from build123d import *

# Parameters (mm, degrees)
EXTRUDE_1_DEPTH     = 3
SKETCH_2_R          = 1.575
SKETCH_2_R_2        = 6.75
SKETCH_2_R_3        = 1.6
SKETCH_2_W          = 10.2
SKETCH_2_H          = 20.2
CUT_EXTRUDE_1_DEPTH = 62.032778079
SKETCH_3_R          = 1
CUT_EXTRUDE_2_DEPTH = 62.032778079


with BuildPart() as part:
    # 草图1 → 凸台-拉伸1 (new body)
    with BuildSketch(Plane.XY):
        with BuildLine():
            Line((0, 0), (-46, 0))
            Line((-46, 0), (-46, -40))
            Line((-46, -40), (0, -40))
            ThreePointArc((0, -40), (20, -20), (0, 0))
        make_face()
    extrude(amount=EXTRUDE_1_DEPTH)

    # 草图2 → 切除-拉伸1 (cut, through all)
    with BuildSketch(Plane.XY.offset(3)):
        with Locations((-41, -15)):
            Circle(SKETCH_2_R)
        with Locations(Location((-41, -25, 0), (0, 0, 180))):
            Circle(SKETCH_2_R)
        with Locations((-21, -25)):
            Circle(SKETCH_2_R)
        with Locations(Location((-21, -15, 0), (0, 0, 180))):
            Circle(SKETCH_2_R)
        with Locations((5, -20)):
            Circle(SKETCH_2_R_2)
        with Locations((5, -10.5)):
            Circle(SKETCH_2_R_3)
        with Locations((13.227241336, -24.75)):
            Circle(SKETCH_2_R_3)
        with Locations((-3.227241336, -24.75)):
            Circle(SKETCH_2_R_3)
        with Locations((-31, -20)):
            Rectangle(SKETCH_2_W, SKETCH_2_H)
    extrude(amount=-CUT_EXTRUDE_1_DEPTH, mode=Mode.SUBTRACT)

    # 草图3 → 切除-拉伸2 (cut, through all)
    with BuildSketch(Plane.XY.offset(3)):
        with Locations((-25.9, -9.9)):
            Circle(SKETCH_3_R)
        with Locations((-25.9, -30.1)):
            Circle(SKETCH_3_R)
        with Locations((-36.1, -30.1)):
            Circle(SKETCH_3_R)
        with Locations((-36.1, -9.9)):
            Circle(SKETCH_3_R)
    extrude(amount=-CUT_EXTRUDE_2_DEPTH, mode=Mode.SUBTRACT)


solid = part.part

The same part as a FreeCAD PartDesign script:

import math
import FreeCAD as App
import Part
import Sketcher

doc = App.newDocument("Part")
params = doc.addObject("Spreadsheet::Sheet", "Params")
for row, (alias, value) in enumerate([
    ("sketch1_radius", "20 mm"),
    ("sketch1_width", "46 mm"),
    ("pad1_length", "3 mm"),
    ("sketch2_diameter", "13.5 mm"),
    ("sketch2_diameter2", "3.2 mm"),
    ("sketch2_diameter3", "3.15 mm"),
    ("sketch2_width", "10.2 mm"),
    ("sketch2_height", "20.2 mm"),
    ("sketch3_diameter", "2 mm"),
], start=1):
    params.set(f"A{row}", alias)
    params.set(f"B{row}", "=" + value)
    params.setAlias(f"B{row}", alias)

body = doc.addObject("PartDesign::Body", "Body")

sketch1 = doc.addObject("Sketcher::SketchObject", "Sketch")
body.addObject(sketch1)
sketch1.AttachmentSupport = (doc.XY_Plane, [""])
sketch1.MapMode = "FlatFace"
sketch1.addGeometry([
    Part.LineSegment(App.Vector(0, 0, 0), App.Vector(-46, 0, 0)),
    Part.LineSegment(App.Vector(-46, 0, 0), App.Vector(-46, -40, 0)),
    Part.LineSegment(App.Vector(-46, -40, 0), App.Vector(0, -40, 0)),
    Part.ArcOfCircle(Part.Circle(App.Vector(0, -20, 0), App.Vector(0, 0, 1), 20), math.radians(-90), math.radians(90)),
], False)
sketch1.addConstraint([
    Sketcher.Constraint("Coincident", 0, 2, 1, 1),
    Sketcher.Constraint("Coincident", 1, 2, 2, 1),
    Sketcher.Constraint("Tangent", 2, 2, 3, 1),
    Sketcher.Constraint("Tangent", 3, 2, 0, 1),
    Sketcher.Constraint("Horizontal", 0),
    Sketcher.Constraint("Vertical", 1),
    Sketcher.Constraint("Horizontal", 2),
    Sketcher.Constraint("Coincident", 3, 2, -1, 1),
    Sketcher.Constraint("Radius", 3, 20.0),
    Sketcher.Constraint("DistanceX", 0, 2, 0, 1, 46.0),
])
sketch1.setExpression("Constraints[8]", "Params.sketch1_radius")
sketch1.setExpression("Constraints[9]", "Params.sketch1_width")
pad1 = doc.addObject("PartDesign::Pad", "Pad")
body.addObject(pad1)
pad1.Profile = sketch1
pad1.setExpression("Length", "Params.pad1_length")

sketch2 = doc.addObject("Sketcher::SketchObject", "Sketch001")
body.addObject(sketch2)
sketch2.AttachmentSupport = (doc.XY_Plane, [""])
sketch2.MapMode = "FlatFace"
sketch2.AttachmentOffset = App.Placement(App.Vector(0, 0, 3), App.Rotation())
sketch2.addGeometry([
    Part.Circle(App.Vector(-41, -15, 0), App.Vector(0, 0, 1), 1.575),
    Part.Circle(App.Vector(-41, -25, 0), App.Vector(0, 0, 1), 1.575),
    Part.Circle(App.Vector(-21, -25, 0), App.Vector(0, 0, 1), 1.575),
    Part.Circle(App.Vector(-21, -15, 0), App.Vector(0, 0, 1), 1.575),
    Part.Circle(App.Vector(5, -20, 0), App.Vector(0, 0, 1), 6.75),
    Part.Circle(App.Vector(5, -10.5, 0), App.Vector(0, 0, 1), 1.6),
    Part.Circle(App.Vector(13.227241, -24.75, 0), App.Vector(0, 0, 1), 1.6),
    Part.Circle(App.Vector(-3.227241, -24.75, 0), App.Vector(0, 0, 1), 1.6),
    Part.LineSegment(App.Vector(-36.1, -9.9, 0), App.Vector(-36.1, -30.1, 0)),
    Part.LineSegment(App.Vector(-36.1, -30.1, 0), App.Vector(-25.9, -30.1, 0)),
    Part.LineSegment(App.Vector(-25.9, -30.1, 0), App.Vector(-25.9, -9.9, 0)),
    Part.LineSegment(App.Vector(-25.9, -9.9, 0), App.Vector(-36.1, -9.9, 0)),
], False)
sketch2.addConstraint([
    Sketcher.Constraint("Coincident", 8, 2, 9, 1),
    Sketcher.Constraint("Coincident", 9, 2, 10, 1),
    Sketcher.Constraint("Coincident", 10, 2, 11, 1),
    Sketcher.Constraint("Coincident", 11, 2, 8, 1),
    Sketcher.Constraint("Vertical", 8),
    Sketcher.Constraint("Horizontal", 9),
    Sketcher.Constraint("Vertical", 10),
    Sketcher.Constraint("Horizontal", 11),
    Sketcher.Constraint("Equal", 0, 1),
    Sketcher.Constraint("Equal", 1, 2),
    Sketcher.Constraint("Equal", 2, 3),
    Sketcher.Constraint("Equal", 5, 6),
    Sketcher.Constraint("Equal", 6, 7),
    Sketcher.Constraint("Horizontal", 1, 3, 2, 3),
    Sketcher.Constraint("Horizontal", 0, 3, 3, 3),
    Sketcher.Constraint("Horizontal", 6, 3, 7, 3),
    Sketcher.Constraint("Vertical", 0, 3, 1, 3),
    Sketcher.Constraint("Vertical", 2, 3, 3, 3),
    Sketcher.Constraint("Vertical", 4, 3, 5, 3),
    Sketcher.Constraint("Diameter", 4, 13.5),
    Sketcher.Constraint("Diameter", 5, 3.2),
    Sketcher.Constraint("Diameter", 0, 3.15),
    Sketcher.Constraint("DistanceX", 9, 1, 9, 2, 10.2),
    Sketcher.Constraint("DistanceY", 8, 2, 8, 1, 20.2),
    Sketcher.Constraint("DistanceX", 0, 3, -1, 1, 41.0),
    Sketcher.Constraint("DistanceY", 0, 3, -1, 1, 15.0),
    Sketcher.Constraint("DistanceY", 1, 3, -1, 1, 25.0),
    Sketcher.Constraint("DistanceX", 2, 3, -1, 1, 21.0),
    Sketcher.Constraint("DistanceX", -1, 1, 4, 3, 5.0),
    Sketcher.Constraint("DistanceY", 4, 3, -1, 1, 20.0),
    Sketcher.Constraint("DistanceY", 5, 3, -1, 1, 10.5),
    Sketcher.Constraint("DistanceX", 8, 2, -1, 1, 36.1),
    Sketcher.Constraint("DistanceY", 8, 2, -1, 1, 30.1),
    Sketcher.Constraint("DistanceY", 6, 3, -1, 1, 24.75),
    Sketcher.Constraint("DistanceX", -1, 1, 6, 3, 13.227241),
    Sketcher.Constraint("DistanceX", 7, 3, -1, 1, 3.227241),
])
sketch2.setExpression("Constraints[19]", "Params.sketch2_diameter")
sketch2.setExpression("Constraints[20]", "Params.sketch2_diameter2")
sketch2.setExpression("Constraints[21]", "Params.sketch2_diameter3")
sketch2.setExpression("Constraints[22]", "Params.sketch2_width")
sketch2.setExpression("Constraints[23]", "Params.sketch2_height")
pocket1 = doc.addObject("PartDesign::Pocket", "Pocket")
body.addObject(pocket1)
pocket1.Profile = sketch2
pocket1.Type = "ThroughAll"

sketch3 = doc.addObject("Sketcher::SketchObject", "Sketch002")
body.addObject(sketch3)
sketch3.AttachmentSupport = (doc.XY_Plane, [""])
sketch3.MapMode = "FlatFace"
sketch3.AttachmentOffset = App.Placement(App.Vector(0, 0, 3), App.Rotation())
sketch3.addGeometry([
    Part.Circle(App.Vector(-25.9, -9.9, 0), App.Vector(0, 0, 1), 1),
    Part.Circle(App.Vector(-25.9, -30.1, 0), App.Vector(0, 0, 1), 1),
    Part.Circle(App.Vector(-36.1, -30.1, 0), App.Vector(0, 0, 1), 1),
    Part.Circle(App.Vector(-36.1, -9.9, 0), App.Vector(0, 0, 1), 1),
], False)
sketch3.addConstraint([
    Sketcher.Constraint("Equal", 0, 1),
    Sketcher.Constraint("Equal", 1, 2),
    Sketcher.Constraint("Equal", 2, 3),
    Sketcher.Constraint("Horizontal", 1, 3, 2, 3),
    Sketcher.Constraint("Horizontal", 0, 3, 3, 3),
    Sketcher.Constraint("Vertical", 0, 3, 1, 3),
    Sketcher.Constraint("Vertical", 2, 3, 3, 3),
    Sketcher.Constraint("Diameter", 0, 2.0),
    Sketcher.Constraint("DistanceX", 0, 3, -1, 1, 25.9),
    Sketcher.Constraint("DistanceY", 0, 3, -1, 1, 9.9),
    Sketcher.Constraint("DistanceY", 1, 3, -1, 1, 30.1),
    Sketcher.Constraint("DistanceX", 2, 3, -1, 1, 36.1),
])
sketch3.setExpression("Constraints[7]", "Params.sketch3_diameter")
pocket2 = doc.addObject("PartDesign::Pocket", "Pocket001")
body.addObject(pocket2)
pocket2.Profile = sketch3
pocket2.Type = "ThroughAll"

doc.recompute()
